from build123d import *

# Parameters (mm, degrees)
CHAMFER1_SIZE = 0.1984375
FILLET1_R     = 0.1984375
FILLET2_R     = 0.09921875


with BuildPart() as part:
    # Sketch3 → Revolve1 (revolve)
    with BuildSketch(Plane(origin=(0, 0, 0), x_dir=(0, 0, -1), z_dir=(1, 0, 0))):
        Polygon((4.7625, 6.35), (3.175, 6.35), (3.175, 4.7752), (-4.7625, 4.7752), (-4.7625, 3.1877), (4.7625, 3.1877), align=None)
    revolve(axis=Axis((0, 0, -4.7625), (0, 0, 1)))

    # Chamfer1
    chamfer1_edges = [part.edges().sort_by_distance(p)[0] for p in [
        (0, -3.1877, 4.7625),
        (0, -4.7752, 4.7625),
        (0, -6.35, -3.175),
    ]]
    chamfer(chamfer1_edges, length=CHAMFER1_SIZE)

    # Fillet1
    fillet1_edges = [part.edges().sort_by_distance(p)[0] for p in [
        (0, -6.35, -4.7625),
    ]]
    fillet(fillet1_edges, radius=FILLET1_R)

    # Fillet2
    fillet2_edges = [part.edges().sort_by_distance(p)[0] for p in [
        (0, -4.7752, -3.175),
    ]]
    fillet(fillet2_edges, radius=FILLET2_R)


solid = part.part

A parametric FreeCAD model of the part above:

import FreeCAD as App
import Part
import Sketcher
Q = App.Units.Quantity


def edges_at(feature, points):
    """Names of the edges that pass closest to the given points."""
    edges = feature.Shape.Edges
    near = lambda p: min(range(len(edges)), key=lambda i: edges[i].distToShape(Part.Vertex(*p))[0])
    return sorted({f"Edge{near(p) + 1}" for p in points})

doc = App.newDocument("Part")
body = doc.addObject("PartDesign::Body", "Body")

# Sketch on YZ plane
sketch1 = doc.addObject("Sketcher::SketchObject", "Sketch")
body.addObject(sketch1)
sketch1.AttachmentSupport = (doc.YZ_Plane, [""])
sketch1.MapMode = "FlatFace"
sketch1.addGeometry(Part.LineSegment(App.Vector(6.3, -4.8, 0), App.Vector(6.3, -3.2, 0)), False)
sketch1.addGeometry(Part.LineSegment(App.Vector(6.3, -3.2, 0), App.Vector(4.8, -3.2, 0)), False)
sketch1.addGeometry(Part.LineSegment(App.Vector(4.8, -3.2, 0), App.Vector(4.8, 4.8, 0)), False)
sketch1.addGeometry(Part.LineSegment(App.Vector(4.8, 4.8, 0), App.Vector(3.2, 4.8, 0)), False)
sketch1.addGeometry(Part.LineSegment(App.Vector(3.2, 4.8, 0), App.Vector(3.2, -4.8, 0)), False)
sketch1.addGeometry(Part.LineSegment(App.Vector(3.2, -4.8, 0), App.Vector(6.3, -4.8, 0)), False)
sketch1.addConstraint(Sketcher.Constraint("Coincident", 0, 2, 1, 1))
sketch1.addConstraint(Sketcher.Constraint("Coincident", 1, 2, 2, 1))
sketch1.addConstraint(Sketcher.Constraint("Coincident", 2, 2, 3, 1))
sketch1.addConstraint(Sketcher.Constraint("Coincident", 3, 2, 4, 1))
sketch1.addConstraint(Sketcher.Constraint("Coincident", 4, 2, 5, 1))
sketch1.addConstraint(Sketcher.Constraint("Coincident", 5, 2, 0, 1))
sketch1.addConstraint(Sketcher.Constraint("Vertical", 0))
sketch1.addConstraint(Sketcher.Constraint("Horizontal", 1))
sketch1.addConstraint(Sketcher.Constraint("Vertical", 2))
sketch1.addConstraint(Sketcher.Constraint("Horizontal", 3))
sketch1.addConstraint(Sketcher.Constraint("Vertical", 4))
sketch1.addConstraint(Sketcher.Constraint("Horizontal", 5))
sketch1.addConstraint(Sketcher.Constraint("Equal", 3, 0))
sketch1.addConstraint(Sketcher.Constraint("DistanceX", 1, 2, 1, 1, Q("0.062 in")))
sketch1.addConstraint(Sketcher.Constraint("DistanceX", 3, 2, 3, 1, Q("0.0625 in")))
sketch1.addConstraint(Sketcher.Constraint("DistanceY", 2, 1, 2, 2, Q("0.3125 in")))
sketch1.addConstraint(Sketcher.Constraint("DistanceX", -1, 1, 0, 2, Q("0.25 in")))
sketch1.addConstraint(Sketcher.Constraint("DistanceY", 0, 2, -1, 1, Q("0.125 in")))
revolution = doc.addObject("PartDesign::Revolution", "Revolution")
body.addObject(revolution)
revolution.Profile = sketch1
revolution.ReferenceAxis = (sketch1, ["V_Axis"])
revolution.Angle = 360
doc.recompute()

chamfer = doc.addObject("PartDesign::Chamfer", "Chamfer")
body.addObject(chamfer)
chamfer.Base = (revolution, edges_at(revolution, [(0, -3.188, 4.763), (0, -4.775, 4.763), (0, -6.35, -3.175)]))
chamfer.Size = 0.198437
doc.recompute()

fillet = doc.addObject("PartDesign::Fillet", "Fillet")
body.addObject(fillet)
fillet.Base = (chamfer, edges_at(chamfer, [(0, -6.35, -4.763)]))
fillet.Radius = 0.198437
doc.recompute()

fillet2 = doc.addObject("PartDesign::Fillet", "Fillet001")
body.addObject(fillet2)
fillet2.Base = (fillet, edges_at(fillet, [(0, -4.775, -3.175)]))
fillet2.Radius = 0.099219

doc.recompute()
